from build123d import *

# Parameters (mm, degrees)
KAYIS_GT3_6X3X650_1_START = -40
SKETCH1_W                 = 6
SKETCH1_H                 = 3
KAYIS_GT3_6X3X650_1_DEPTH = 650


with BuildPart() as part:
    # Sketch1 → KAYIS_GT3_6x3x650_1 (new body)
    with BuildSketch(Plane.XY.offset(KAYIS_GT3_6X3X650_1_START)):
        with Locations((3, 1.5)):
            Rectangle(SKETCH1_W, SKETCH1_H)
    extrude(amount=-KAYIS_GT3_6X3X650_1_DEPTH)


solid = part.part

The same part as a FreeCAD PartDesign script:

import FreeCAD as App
import Part
import Sketcher

doc = App.newDocument("Part")
body = doc.addObject("PartDesign::Body", "Body")

# Sketch on XY plane
sketch1 = body.newObject("Sketcher::SketchObject", "Sketch")
sketch1.AttachmentSupport = (doc.getObject("XY_Plane"), [""])
sketch1.MapMode = "FlatFace"
sketch1.AttachmentOffset = App.Placement(App.Vector(0, 0, -40), App.Rotation())
sketch1.addGeometry([
    Part.LineSegment(App.Vector(0, 3, 0), App.Vector(0, 0, 0)),
    Part.LineSegment(App.Vector(0, 0, 0), App.Vector(6, 0, 0)),
    Part.LineSegment(App.Vector(6, 0, 0), App.Vector(6, 3, 0)),
    Part.LineSegment(App.Vector(6, 3, 0), App.Vector(0, 3, 0)),
], False)
sketch1.addConstraint([
    Sketcher.Constraint("Coincident", 0, 2, 1, 1),
    Sketcher.Constraint("Coincident", 1, 2, 2, 1),
    Sketcher.Constraint("Coincident", 2, 2, 3, 1),
    Sketcher.Constraint("Coincident", 3, 2, 0, 1),
    Sketcher.Constraint("Vertical", 0),
    Sketcher.Constraint("Horizontal", 1),
    Sketcher.Constraint("Vertical", 2),
    Sketcher.Constraint("Horizontal", 3),
    Sketcher.Constraint("Coincident", 0, 2, -1, 1),
    Sketcher.Constraint("DistanceX", 1, 1, 1, 2, 6.0),
    Sketcher.Constraint("DistanceY", 0, 2, 0, 1, 3.0),
])
pad1 = body.newObject("PartDesign::Pad", "Pad")
pad1.Profile = sketch1
pad1.Length = 650
pad1.Reversed = True

doc.recompute()
